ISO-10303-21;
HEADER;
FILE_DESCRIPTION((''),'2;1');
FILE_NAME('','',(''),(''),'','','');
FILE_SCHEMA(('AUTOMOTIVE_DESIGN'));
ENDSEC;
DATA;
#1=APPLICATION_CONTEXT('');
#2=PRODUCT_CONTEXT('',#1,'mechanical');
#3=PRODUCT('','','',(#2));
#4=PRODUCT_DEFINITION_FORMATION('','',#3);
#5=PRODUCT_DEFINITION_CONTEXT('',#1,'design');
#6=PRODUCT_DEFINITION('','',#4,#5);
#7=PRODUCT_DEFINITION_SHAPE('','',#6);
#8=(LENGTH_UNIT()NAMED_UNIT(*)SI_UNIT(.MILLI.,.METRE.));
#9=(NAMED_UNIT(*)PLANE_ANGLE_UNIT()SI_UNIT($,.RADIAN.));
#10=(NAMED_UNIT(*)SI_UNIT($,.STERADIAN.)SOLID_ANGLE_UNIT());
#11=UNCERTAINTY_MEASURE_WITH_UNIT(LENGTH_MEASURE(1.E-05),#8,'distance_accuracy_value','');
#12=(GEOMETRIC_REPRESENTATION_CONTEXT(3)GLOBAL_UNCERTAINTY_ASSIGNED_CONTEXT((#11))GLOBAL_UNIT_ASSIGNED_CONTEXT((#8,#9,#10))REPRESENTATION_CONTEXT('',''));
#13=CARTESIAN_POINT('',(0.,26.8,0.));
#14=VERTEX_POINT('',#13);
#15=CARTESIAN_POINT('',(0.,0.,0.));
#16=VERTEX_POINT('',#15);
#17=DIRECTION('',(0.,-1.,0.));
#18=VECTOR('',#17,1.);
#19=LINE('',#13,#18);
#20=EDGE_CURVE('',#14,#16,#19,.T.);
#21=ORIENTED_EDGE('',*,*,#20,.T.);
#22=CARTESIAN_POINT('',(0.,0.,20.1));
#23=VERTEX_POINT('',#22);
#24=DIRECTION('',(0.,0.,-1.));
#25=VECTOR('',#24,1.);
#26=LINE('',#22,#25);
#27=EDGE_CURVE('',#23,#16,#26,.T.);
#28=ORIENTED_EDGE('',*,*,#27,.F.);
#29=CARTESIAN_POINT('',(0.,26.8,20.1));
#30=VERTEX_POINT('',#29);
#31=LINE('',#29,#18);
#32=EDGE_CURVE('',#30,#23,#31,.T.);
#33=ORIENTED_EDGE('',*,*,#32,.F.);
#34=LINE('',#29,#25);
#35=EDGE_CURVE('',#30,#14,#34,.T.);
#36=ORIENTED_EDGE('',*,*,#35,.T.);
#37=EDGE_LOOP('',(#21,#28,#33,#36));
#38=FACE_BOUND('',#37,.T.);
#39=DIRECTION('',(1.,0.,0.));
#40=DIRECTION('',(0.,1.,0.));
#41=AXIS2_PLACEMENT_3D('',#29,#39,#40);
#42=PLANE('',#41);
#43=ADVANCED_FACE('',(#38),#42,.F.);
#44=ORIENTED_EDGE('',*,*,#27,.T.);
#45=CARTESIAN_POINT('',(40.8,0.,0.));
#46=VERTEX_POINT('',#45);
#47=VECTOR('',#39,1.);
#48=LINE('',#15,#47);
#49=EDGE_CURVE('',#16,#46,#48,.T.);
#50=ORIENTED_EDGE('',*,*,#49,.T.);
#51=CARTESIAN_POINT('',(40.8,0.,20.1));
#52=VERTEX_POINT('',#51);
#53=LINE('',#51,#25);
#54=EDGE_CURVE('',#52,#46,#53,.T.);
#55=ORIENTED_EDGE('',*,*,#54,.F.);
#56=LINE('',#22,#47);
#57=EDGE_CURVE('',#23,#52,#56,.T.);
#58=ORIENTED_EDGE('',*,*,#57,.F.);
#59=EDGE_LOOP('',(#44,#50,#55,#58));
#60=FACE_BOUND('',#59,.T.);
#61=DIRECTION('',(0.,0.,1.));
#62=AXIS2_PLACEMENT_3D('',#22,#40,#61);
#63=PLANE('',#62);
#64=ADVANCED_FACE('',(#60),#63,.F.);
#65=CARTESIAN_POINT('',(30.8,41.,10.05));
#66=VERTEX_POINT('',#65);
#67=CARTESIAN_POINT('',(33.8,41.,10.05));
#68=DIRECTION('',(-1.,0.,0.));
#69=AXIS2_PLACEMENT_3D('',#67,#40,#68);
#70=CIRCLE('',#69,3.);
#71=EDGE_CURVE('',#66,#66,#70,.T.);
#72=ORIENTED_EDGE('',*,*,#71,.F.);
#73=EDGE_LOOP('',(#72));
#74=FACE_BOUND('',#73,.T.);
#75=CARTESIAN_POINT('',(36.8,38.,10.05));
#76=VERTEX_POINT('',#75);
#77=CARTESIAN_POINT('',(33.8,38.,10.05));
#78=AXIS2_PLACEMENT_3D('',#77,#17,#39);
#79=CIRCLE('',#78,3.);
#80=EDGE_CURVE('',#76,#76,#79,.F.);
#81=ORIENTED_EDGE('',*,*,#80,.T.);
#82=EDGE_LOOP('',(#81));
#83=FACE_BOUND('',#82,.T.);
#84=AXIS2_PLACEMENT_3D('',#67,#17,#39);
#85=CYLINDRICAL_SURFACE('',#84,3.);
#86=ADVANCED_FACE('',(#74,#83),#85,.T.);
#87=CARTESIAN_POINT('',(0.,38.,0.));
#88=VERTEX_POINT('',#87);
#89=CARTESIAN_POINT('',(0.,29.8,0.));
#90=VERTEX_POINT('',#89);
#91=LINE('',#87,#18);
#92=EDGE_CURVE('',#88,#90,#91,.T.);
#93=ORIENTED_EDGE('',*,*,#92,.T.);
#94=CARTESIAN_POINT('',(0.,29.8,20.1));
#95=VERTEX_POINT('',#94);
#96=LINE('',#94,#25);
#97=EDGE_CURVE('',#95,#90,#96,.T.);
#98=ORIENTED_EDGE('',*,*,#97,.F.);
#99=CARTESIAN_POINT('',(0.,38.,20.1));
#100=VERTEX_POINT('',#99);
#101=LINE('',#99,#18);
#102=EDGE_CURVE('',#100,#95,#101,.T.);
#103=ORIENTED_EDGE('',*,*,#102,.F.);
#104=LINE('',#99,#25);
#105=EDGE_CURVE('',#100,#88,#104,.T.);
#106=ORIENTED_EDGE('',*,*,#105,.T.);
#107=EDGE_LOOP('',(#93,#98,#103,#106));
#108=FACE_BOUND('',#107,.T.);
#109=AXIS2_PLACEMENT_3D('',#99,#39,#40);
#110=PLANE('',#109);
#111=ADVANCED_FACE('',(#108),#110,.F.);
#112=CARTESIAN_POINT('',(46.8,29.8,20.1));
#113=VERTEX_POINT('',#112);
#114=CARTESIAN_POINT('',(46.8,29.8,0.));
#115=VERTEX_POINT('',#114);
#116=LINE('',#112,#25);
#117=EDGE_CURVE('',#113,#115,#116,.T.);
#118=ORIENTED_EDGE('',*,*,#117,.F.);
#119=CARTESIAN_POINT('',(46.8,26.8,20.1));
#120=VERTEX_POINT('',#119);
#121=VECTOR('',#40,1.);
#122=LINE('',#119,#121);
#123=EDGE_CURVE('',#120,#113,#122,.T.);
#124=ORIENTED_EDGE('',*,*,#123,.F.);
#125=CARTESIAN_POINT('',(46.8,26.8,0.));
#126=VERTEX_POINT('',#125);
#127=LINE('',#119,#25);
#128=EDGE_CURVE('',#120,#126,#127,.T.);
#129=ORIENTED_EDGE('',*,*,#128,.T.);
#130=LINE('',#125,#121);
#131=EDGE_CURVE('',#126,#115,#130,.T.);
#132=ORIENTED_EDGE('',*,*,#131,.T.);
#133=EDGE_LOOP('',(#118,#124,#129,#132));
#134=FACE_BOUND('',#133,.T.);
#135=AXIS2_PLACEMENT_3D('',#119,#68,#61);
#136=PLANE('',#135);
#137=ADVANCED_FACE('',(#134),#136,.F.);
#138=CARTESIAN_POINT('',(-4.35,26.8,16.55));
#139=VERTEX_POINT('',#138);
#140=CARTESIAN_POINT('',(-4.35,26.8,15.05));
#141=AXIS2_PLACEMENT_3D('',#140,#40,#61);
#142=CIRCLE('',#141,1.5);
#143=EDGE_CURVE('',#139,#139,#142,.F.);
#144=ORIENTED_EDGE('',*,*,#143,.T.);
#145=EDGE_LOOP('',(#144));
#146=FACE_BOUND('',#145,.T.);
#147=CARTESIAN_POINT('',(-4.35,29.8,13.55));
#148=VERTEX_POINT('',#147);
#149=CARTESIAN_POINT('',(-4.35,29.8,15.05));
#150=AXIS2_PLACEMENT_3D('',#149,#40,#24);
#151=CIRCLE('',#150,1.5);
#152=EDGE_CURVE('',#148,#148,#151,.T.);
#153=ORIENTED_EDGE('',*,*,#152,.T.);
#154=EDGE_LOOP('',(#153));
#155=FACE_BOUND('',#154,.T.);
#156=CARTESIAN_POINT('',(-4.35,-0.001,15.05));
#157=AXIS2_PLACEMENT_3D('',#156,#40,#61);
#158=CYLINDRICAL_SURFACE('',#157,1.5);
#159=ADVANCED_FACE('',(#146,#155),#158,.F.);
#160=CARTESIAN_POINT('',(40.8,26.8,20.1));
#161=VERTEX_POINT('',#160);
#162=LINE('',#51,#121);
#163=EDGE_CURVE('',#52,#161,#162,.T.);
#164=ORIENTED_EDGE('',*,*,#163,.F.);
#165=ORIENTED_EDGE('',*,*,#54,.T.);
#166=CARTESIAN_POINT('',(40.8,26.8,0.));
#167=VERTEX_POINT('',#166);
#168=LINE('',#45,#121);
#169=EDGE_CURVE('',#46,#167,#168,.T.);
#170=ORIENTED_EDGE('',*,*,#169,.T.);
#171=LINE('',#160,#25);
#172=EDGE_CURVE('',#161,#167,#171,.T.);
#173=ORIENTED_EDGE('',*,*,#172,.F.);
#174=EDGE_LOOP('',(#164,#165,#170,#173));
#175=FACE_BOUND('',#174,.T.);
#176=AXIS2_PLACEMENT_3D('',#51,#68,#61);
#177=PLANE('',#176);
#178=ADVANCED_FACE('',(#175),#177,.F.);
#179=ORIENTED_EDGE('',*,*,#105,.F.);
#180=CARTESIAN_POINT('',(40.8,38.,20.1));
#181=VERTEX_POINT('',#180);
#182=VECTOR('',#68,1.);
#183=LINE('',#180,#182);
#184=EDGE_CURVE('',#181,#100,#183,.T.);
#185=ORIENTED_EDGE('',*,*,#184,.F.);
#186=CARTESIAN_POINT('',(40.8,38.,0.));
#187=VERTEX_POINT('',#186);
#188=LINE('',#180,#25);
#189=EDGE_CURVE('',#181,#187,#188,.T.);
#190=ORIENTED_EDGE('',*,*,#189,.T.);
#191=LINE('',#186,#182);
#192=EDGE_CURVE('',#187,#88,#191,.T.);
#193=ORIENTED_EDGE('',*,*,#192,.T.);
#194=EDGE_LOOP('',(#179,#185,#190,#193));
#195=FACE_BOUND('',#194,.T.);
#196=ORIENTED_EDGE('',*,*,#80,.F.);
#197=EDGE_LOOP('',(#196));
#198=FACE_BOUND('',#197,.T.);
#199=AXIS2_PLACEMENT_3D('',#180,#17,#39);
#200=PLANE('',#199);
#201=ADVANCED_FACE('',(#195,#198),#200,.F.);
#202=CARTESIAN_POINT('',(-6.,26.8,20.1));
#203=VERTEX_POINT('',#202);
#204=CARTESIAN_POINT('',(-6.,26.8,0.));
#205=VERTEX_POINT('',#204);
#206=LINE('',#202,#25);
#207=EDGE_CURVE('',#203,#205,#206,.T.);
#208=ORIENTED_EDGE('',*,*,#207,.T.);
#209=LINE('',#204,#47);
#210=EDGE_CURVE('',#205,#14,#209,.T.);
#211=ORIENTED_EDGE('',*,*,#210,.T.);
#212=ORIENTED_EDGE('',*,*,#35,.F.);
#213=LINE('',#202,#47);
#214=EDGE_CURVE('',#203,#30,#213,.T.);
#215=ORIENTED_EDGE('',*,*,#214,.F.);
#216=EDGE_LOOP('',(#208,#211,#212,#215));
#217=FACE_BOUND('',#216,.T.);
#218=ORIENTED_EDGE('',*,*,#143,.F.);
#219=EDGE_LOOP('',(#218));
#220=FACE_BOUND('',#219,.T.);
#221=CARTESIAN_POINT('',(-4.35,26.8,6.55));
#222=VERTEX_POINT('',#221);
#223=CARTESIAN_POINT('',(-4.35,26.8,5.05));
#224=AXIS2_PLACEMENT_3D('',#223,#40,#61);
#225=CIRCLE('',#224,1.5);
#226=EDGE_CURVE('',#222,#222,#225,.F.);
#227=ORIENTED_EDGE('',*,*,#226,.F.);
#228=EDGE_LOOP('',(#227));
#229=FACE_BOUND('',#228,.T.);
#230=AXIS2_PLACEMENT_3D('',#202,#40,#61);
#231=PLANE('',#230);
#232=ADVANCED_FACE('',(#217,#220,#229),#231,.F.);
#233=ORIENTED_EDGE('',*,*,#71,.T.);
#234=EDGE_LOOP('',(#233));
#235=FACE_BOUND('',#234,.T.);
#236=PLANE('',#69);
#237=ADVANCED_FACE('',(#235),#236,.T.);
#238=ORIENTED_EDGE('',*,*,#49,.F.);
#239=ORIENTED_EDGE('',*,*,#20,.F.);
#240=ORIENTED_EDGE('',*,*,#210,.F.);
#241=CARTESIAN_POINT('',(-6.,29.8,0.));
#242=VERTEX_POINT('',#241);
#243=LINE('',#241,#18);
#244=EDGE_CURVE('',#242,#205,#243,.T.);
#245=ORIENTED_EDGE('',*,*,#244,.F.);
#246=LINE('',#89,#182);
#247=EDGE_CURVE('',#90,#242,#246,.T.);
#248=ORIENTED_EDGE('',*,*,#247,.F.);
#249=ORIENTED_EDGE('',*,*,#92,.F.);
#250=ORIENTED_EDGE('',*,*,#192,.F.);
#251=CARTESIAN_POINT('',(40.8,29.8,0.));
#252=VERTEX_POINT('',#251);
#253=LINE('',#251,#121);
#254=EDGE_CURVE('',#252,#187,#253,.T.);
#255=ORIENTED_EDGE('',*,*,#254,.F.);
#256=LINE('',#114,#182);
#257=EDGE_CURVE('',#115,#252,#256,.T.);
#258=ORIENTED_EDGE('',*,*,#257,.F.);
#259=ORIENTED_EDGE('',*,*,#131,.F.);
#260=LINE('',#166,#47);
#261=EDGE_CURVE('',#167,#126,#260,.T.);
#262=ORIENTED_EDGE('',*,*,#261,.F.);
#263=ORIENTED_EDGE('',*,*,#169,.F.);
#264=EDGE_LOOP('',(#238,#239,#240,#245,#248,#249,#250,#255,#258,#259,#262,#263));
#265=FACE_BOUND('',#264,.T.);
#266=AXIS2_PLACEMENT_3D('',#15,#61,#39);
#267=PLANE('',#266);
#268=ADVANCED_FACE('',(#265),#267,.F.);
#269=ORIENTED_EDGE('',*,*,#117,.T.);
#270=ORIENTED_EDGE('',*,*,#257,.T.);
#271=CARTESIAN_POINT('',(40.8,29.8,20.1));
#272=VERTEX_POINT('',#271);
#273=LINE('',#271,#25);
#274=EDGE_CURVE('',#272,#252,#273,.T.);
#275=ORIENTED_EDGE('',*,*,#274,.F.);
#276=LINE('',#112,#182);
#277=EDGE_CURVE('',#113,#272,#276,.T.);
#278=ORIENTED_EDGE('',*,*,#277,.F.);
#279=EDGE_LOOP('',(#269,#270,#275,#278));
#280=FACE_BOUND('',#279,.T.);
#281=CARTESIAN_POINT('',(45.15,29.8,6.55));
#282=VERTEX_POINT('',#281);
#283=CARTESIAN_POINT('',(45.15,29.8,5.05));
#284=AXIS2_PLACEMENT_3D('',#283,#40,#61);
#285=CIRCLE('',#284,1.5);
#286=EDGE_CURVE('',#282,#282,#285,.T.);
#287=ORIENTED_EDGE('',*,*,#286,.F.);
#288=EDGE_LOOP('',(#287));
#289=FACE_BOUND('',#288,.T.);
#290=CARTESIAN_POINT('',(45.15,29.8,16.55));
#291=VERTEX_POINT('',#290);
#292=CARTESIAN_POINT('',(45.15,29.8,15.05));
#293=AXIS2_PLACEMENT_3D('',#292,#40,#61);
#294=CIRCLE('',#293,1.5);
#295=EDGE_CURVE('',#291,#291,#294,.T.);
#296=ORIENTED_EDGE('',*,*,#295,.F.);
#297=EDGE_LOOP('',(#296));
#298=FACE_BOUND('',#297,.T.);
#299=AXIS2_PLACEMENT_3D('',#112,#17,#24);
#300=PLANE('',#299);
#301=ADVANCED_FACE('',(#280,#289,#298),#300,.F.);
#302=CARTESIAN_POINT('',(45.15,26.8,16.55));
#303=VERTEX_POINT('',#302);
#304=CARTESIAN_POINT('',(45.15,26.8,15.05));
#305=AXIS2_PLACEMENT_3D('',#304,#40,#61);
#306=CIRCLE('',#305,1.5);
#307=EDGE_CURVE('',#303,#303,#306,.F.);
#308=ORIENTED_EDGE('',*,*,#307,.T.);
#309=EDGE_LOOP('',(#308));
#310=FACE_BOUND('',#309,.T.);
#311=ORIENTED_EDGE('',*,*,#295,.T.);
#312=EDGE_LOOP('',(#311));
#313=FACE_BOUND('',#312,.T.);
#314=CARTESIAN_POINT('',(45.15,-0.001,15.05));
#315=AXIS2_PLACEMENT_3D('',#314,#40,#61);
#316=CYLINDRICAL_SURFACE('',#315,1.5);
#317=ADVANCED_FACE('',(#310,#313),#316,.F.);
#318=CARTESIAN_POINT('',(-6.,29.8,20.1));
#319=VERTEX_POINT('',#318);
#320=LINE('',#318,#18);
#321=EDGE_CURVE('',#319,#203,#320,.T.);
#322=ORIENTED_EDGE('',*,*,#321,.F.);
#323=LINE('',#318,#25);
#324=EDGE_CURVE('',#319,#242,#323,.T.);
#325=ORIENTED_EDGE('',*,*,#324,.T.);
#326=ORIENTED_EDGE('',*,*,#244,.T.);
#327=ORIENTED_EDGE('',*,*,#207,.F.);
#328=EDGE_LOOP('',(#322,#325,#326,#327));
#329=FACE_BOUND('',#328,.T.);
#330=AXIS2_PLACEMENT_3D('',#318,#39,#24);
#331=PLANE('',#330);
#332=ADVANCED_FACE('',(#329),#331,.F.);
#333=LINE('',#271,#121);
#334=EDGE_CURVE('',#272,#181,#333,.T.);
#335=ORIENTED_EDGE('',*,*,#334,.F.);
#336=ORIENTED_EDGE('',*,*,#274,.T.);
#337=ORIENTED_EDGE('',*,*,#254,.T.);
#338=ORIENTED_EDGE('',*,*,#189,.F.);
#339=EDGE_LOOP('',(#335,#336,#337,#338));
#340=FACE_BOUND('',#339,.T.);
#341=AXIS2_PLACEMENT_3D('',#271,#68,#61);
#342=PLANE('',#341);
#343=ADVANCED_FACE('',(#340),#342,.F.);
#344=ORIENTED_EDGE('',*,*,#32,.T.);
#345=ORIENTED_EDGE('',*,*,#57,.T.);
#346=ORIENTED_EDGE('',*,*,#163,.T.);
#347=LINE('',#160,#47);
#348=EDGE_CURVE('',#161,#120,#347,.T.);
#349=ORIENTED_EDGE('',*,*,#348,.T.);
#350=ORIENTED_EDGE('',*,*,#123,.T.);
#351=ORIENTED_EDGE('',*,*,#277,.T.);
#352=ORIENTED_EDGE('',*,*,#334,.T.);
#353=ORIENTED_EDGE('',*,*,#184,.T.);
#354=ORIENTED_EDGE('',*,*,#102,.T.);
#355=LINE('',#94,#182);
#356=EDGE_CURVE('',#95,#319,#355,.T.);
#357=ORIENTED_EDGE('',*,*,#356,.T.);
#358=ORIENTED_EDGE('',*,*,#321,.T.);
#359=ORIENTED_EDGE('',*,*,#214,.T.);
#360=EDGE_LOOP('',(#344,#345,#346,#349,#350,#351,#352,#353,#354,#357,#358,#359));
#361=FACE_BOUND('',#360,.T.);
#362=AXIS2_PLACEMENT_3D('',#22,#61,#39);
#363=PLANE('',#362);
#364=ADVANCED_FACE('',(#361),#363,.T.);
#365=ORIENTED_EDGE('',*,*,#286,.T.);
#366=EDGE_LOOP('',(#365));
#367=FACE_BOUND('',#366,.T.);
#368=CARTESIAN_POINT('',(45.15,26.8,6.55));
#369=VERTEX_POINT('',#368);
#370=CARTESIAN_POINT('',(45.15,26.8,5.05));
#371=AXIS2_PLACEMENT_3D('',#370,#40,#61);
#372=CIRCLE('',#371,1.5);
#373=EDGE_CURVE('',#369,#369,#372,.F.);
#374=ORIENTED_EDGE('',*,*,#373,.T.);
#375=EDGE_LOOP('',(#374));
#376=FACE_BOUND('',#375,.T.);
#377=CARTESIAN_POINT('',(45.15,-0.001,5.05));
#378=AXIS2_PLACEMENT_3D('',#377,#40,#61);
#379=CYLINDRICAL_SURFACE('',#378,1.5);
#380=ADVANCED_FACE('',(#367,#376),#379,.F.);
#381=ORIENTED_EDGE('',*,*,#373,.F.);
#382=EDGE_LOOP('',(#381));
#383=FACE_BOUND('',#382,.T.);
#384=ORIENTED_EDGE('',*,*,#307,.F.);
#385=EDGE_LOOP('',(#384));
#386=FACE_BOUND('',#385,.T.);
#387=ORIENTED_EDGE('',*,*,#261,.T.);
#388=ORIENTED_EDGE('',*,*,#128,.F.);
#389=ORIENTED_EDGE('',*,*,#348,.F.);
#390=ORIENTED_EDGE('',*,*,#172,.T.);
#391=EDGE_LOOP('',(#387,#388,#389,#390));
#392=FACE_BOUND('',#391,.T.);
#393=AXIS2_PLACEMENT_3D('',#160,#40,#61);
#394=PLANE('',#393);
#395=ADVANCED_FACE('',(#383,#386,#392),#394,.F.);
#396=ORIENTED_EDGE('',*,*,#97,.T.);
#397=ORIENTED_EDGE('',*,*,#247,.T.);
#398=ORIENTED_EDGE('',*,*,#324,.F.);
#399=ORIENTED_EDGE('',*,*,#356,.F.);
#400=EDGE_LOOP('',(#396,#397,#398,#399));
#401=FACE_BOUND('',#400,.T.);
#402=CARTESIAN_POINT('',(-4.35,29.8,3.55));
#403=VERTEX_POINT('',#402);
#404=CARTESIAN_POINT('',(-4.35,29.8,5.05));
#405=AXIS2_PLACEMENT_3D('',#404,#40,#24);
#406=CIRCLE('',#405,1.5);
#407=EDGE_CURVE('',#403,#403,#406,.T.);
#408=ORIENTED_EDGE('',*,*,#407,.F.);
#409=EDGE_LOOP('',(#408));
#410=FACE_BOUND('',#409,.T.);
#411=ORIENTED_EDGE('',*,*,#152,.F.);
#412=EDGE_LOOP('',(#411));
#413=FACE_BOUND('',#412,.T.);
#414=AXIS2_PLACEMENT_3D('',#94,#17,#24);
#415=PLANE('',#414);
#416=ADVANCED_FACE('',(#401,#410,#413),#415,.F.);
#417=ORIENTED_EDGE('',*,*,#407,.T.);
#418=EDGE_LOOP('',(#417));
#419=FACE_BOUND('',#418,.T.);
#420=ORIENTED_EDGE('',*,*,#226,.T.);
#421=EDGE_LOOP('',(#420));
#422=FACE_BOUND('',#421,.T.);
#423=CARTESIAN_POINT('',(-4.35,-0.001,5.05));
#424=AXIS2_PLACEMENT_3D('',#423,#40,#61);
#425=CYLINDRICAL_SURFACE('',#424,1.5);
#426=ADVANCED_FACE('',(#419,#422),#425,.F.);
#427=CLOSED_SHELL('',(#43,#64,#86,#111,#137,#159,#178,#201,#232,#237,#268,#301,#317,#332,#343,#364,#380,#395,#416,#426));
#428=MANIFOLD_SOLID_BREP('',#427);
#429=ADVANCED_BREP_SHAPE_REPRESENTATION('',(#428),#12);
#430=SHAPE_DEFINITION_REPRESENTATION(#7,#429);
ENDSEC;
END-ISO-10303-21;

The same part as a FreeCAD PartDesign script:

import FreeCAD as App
import Part
import Sketcher

V = App.Vector
Q = App.Units.Quantity


def add_polygon(sketch, points):
    """Adds a closed chain of lines whose ends are joined by coincident constraints."""
    first, n = sketch.GeometryCount, len(points)
    for a, b in zip(points, points[1:] + points[:1]):
        sketch.addGeometry(Part.LineSegment(App.Vector(*a, 0), App.Vector(*b, 0)), False)
    for i in range(n):
        sketch.addConstraint(Sketcher.Constraint("Coincident", first + i, 2, first + (i + 1) % n, 1))

doc = App.newDocument("Part")
body = doc.addObject("PartDesign::Body", "Body")

sketch1 = doc.addObject("Sketcher::SketchObject", "Sketch")
body.addObject(sketch1)
sketch1.AttachmentSupport = (doc.XY_Plane, [""])
sketch1.MapMode = "FlatFace"
add_polygon(sketch1, [(0, 0), (40.8, 0), (40.8, 26.8), (46.8, 26.8), (46.8, 29.8), (40.8, 29.8), (40.8, 38), (0, 38), (0, 29.8), (-6, 29.8), (-6, 26.8), (0, 26.8)])
sketch1.addConstraint([
    Sketcher.Constraint("Horizontal", 0),
    Sketcher.Constraint("Vertical", 1),
    Sketcher.Constraint("Horizontal", 2),
    Sketcher.Constraint("Vertical", 3),
    Sketcher.Constraint("Horizontal", 4),
    Sketcher.Constraint("Vertical", 5),
    Sketcher.Constraint("Horizontal", 6),
    Sketcher.Constraint("Vertical", 7),
    Sketcher.Constraint("Horizontal", 8),
    Sketcher.Constraint("Vertical", 9),
    Sketcher.Constraint("Horizontal", 10),
    Sketcher.Constraint("Vertical", 11),
    Sketcher.Constraint("Coincident", 11, 2, -1, 1),
    Sketcher.Constraint("PointOnObject", 6, 2, -2),
    Sketcher.Constraint("Horizontal", 4, 2, 7, 2),
    Sketcher.Constraint("Horizontal", 2, 2, 9, 2),
    Sketcher.Constraint("Vertical", 1, 2, 4, 2),
    Sketcher.Constraint("Equal", 4, 8),
    Sketcher.Constraint("DistanceX", 2, 1, 2, 2, Q("6 mm")),
    Sketcher.Constraint("DistanceY", 3, 1, 3, 2, Q("3 mm")),
    Sketcher.Constraint("DistanceX", 0, 1, 0, 2, Q("40.8 mm")),
    Sketcher.Constraint("DistanceY", 1, 1, 1, 2, Q("26.8 mm")),
    Sketcher.Constraint("DistanceY", 5, 1, 5, 2, Q("8.2 mm")),
])
pad1 = doc.addObject("PartDesign::Pad", "Pad")
body.addObject(pad1)
pad1.Profile = sketch1
pad1.Length = 20.1

sketch2 = doc.addObject("Sketcher::SketchObject", "Sketch001")
body.addObject(sketch2)
sketch2.AttachmentSupport = (doc.XZ_Plane, [""])
sketch2.MapMode = "FlatFace"
sketch2.AttachmentOffset = App.Placement(V(0, 0, -38), App.Rotation())
sketch2.addGeometry(Part.Circle(V(33.8, 10.1, 0), V(0, 0, 1), 3), False)
sketch2.addConstraint([
    Sketcher.Constraint("Diameter", 0, Q("6 mm")),
    Sketcher.Constraint("DistanceX", -1, 1, 0, 3, Q("33.8 mm")),
    Sketcher.Constraint("DistanceY", -1, 1, 0, 3, Q("10.05 mm")),
])
pad2 = doc.addObject("PartDesign::Pad", "Pad001")
body.addObject(pad2)
pad2.Profile = sketch2
pad2.Length = 3
pad2.Reversed = True

sketch3 = doc.addObject("Sketcher::SketchObject", "Sketch002")
body.addObject(sketch3)
sketch3.AttachmentSupport = (doc.XZ_Plane, [""])
sketch3.MapMode = "FlatFace"
sketch3.AttachmentOffset = App.Placement(V(0, 0, -29.8), App.Rotation())
sketch3.addGeometry(Part.Circle(V(45.1, 15.1, 0), V(0, 0, 1), 1.5), False)
sketch3.addConstraint([
    Sketcher.Constraint("Diameter", 0, Q("3 mm")),
    Sketcher.Constraint("DistanceX", -1, 1, 0, 3, Q("45.15 mm")),
    Sketcher.Constraint("DistanceY", -1, 1, 0, 3, Q("15.05 mm")),
])
pocket1 = doc.addObject("PartDesign::Pocket", "Pocket")
body.addObject(pocket1)
pocket1.Profile = sketch3
pocket1.Type = "UpToFirst"
pocket1.Reversed = True

sketch4 = doc.addObject("Sketcher::SketchObject", "Sketch003")
body.addObject(sketch4)
sketch4.AttachmentSupport = (doc.XZ_Plane, [""])
sketch4.MapMode = "FlatFace"
sketch4.AttachmentOffset = App.Placement(V(0, 0, -29.8), App.Rotation())
sketch4.addGeometry(Part.Circle(V(45.1, 5, 0), V(0, 0, 1), 1.5), False)
sketch4.addConstraint([
    Sketcher.Constraint("Diameter", 0, Q("3 mm")),
    Sketcher.Constraint("DistanceX", -1, 1, 0, 3, Q("45.15 mm")),
    Sketcher.Constraint("DistanceY", -1, 1, 0, 3, Q("5.05 mm")),
])
pocket2 = doc.addObject("PartDesign::Pocket", "Pocket001")
body.addObject(pocket2)
pocket2.Profile = sketch4
pocket2.Type = "UpToFirst"
pocket2.Reversed = True

sketch5 = doc.addObject("Sketcher::SketchObject", "Sketch004")
body.addObject(sketch5)
sketch5.AttachmentSupport = (doc.XZ_Plane, [""])
sketch5.MapMode = "FlatFace"
sketch5.AttachmentOffset = App.Placement(V(0, 0, -29.8), App.Rotation())
sketch5.addGeometry(Part.Circle(V(-4.3, 5, 0), V(0, 0, 1), 1.5), False)
sketch5.addConstraint([
    Sketcher.Constraint("Diameter", 0, Q("3 mm")),
    Sketcher.Constraint("DistanceX", 0, 3, -1, 1, Q("4.35 mm")),
    Sketcher.Constraint("DistanceY", -1, 1, 0, 3, Q("5.05 mm")),
])
pocket3 = doc.addObject("PartDesign::Pocket", "Pocket002")
body.addObject(pocket3)
pocket3.Profile = sketch5
pocket3.Type = "UpToFirst"
pocket3.Reversed = True

sketch6 = doc.addObject("Sketcher::SketchObject", "Sketch005")
body.addObject(sketch6)
sketch6.AttachmentSupport = (doc.XZ_Plane, [""])
sketch6.MapMode = "FlatFace"
sketch6.AttachmentOffset = App.Placement(V(0, 0, -29.8), App.Rotation())
sketch6.addGeometry(Part.Circle(V(-4.3, 15.1, 0), V(0, 0, 1), 1.5), False)
sketch6.addConstraint([
    Sketcher.Constraint("Diameter", 0, Q("3 mm")),
    Sketcher.Constraint("DistanceX", 0, 3, -1, 1, Q("4.35 mm")),
    Sketcher.Constraint("DistanceY", -1, 1, 0, 3, Q("15.05 mm")),
])
pocket4 = doc.addObject("PartDesign::Pocket", "Pocket003")
body.addObject(pocket4)
pocket4.Profile = sketch6
pocket4.Type = "UpToFirst"
pocket4.Reversed = True

doc.recompute()
